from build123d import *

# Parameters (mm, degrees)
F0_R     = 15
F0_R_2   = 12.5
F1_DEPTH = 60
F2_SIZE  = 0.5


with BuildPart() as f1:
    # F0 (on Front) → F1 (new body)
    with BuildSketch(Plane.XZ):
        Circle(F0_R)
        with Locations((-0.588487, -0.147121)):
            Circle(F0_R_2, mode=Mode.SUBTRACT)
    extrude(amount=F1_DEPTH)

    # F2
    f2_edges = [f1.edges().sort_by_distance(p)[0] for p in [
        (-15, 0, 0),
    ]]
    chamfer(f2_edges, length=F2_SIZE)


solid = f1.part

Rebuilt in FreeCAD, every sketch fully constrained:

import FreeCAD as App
import Part
import Sketcher

V = App.Vector


def edges_at(feature, points):
    """Names of the edges that pass closest to the given points."""
    edges = feature.Shape.Edges
    near = lambda p: min(range(len(edges)), key=lambda i: edges[i].distToShape(Part.Vertex(*p))[0])
    return sorted({f"Edge{near(p) + 1}" for p in points})

doc = App.newDocument("Part")
body = doc.addObject("PartDesign::Body", "Body")

sketch1 = body.newObject("Sketcher::SketchObject", "Sketch")
sketch1.AttachmentSupport = (doc.getObject("XZ_Plane"), [""])
sketch1.MapMode = "FlatFace"
sketch1.addGeometry([
    Part.Circle(V(0, 0, 0), V(0, 0, 1), 15),
    Part.Circle(V(-1, 0, 0), V(0, 0, 1), 12),
], False)
sketch1.addConstraint([
    Sketcher.Constraint("Coincident", 0, 3, -1, 1),
    Sketcher.Constraint("Diameter", 0, 30.0),
    Sketcher.Constraint("Diameter", 1, 25.0),
    Sketcher.Constraint("DistanceY", 1, 3, -1, 1, 0.147121),
    Sketcher.Constraint("DistanceX", 1, 3, -1, 1, 0.588487),
])
pad1 = body.newObject("PartDesign::Pad", "Pad")
pad1.Profile = sketch1
pad1.Length = 60
doc.recompute()

chamfer = body.newObject("PartDesign::Chamfer", "Chamfer")
chamfer.Base = (pad1, edges_at(pad1, [(-15, 0, 0)]))
chamfer.Size = 0.5

doc.recompute()
